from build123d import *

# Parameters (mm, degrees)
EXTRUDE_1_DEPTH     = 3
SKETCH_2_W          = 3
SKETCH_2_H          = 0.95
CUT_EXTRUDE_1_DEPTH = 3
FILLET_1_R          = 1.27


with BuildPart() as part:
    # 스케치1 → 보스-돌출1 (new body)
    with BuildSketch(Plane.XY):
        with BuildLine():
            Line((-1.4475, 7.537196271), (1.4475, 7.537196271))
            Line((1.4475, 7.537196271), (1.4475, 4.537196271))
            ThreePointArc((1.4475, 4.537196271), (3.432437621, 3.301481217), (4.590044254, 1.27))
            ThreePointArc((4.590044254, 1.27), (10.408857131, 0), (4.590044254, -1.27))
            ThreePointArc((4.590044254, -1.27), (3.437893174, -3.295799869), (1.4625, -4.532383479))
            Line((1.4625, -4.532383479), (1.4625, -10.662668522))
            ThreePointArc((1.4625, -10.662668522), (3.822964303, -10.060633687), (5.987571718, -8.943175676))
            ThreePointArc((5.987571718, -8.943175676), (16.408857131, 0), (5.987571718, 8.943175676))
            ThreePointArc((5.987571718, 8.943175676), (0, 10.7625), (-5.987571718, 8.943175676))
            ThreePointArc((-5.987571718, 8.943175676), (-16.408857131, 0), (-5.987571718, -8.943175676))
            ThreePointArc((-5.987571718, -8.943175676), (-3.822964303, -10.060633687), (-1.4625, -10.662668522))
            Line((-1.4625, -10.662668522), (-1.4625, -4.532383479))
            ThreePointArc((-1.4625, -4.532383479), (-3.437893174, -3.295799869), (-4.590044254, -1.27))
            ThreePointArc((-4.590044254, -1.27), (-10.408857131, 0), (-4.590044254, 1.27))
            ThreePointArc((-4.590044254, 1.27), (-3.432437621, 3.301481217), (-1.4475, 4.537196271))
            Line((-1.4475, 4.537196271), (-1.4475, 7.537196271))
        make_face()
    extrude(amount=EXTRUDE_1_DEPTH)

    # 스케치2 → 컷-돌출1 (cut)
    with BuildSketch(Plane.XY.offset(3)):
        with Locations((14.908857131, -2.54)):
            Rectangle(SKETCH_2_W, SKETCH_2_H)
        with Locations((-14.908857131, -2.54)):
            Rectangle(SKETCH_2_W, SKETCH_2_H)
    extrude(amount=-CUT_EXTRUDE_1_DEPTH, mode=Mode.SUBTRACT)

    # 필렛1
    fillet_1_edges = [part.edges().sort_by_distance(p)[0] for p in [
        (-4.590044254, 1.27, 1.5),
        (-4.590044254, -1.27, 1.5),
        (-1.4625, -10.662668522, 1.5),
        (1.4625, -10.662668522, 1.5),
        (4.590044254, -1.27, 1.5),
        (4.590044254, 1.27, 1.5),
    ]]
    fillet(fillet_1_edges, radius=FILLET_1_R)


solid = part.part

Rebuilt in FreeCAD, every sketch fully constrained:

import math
import FreeCAD as App
import Part
import Sketcher

V = App.Vector
Q = App.Units.Quantity


def edges_at(feature, points):
    """Names of the edges that pass closest to the given points."""
    edges = feature.Shape.Edges
    near = lambda p: min(range(len(edges)), key=lambda i: edges[i].distToShape(Part.Vertex(*p))[0])
    return sorted({f"Edge{near(p) + 1}" for p in points})

doc = App.newDocument("Part")
body = doc.addObject("PartDesign::Body", "Body")

# Sketch on XY plane
sketch1 = body.newObject("Sketcher::SketchObject", "Sketch")
sketch1.AttachmentSupport = (doc.getObject("XY_Plane"), [""])
sketch1.MapMode = "FlatFace"
sketch1.addGeometry([
    Part.LineSegment(V(-1.4, 7.5, 0), V(1.4, 7.5, 0)),  # 0
    Part.LineSegment(V(1.4, 7.5, 0), V(1.4, 4.5, 0)),  # 1
    Part.ArcOfCircle(Part.Circle(V(0, 0, 0), V(0, 0, 1), 4.8), math.radians(15), math.radians(72)),  # 2
    Part.ArcOfCircle(Part.Circle(V(7.4, 0, 0), V(0, 0, 1), 3), math.radians(-155), math.radians(155)),  # 3
    Part.ArcOfCircle(Part.Circle(V(0, 0, 0), V(0, 0, 1), 4.8), math.radians(-72), math.radians(-15)),  # 4
    Part.LineSegment(V(1.5, -4.5, 0), V(1.5, -10.7, 0)),  # 5
    Part.ArcOfCircle(Part.Circle(V(0, 0, 0), V(0, 0, 1), 10.8), math.radians(-82), math.radians(-56)),  # 6
    Part.ArcOfCircle(Part.Circle(V(7.4, 0, 0), V(0, 0, 1), 9), math.radians(-99), math.radians(99)),  # 7
    Part.ArcOfCircle(Part.Circle(V(0, 0, 0), V(0, 0, 1), 10.8), math.radians(56), math.radians(124)),  # 8
    Part.ArcOfCircle(Part.Circle(V(-7.4, 0, 0), V(0, 0, 1), 9), math.radians(81), math.radians(279)),  # 9
    Part.ArcOfCircle(Part.Circle(V(0, 0, 0), V(0, 0, 1), 10.8), math.radians(-124), math.radians(-98)),  # 10
    Part.LineSegment(V(-1.5, -10.7, 0), V(-1.5, -4.5, 0)),  # 11
    Part.ArcOfCircle(Part.Circle(V(0, 0, 0), V(0, 0, 1), 4.8), math.radians(-165), math.radians(-108)),  # 12
    Part.ArcOfCircle(Part.Circle(V(-7.4, 0, 0), V(0, 0, 1), 3), math.radians(25), math.radians(335)),  # 13
    Part.ArcOfCircle(Part.Circle(V(0, 0, 0), V(0, 0, 1), 4.8), math.radians(108), math.radians(165)),  # 14
    Part.LineSegment(V(-1.4, 4.5, 0), V(-1.4, 7.5, 0)),  # 15
], False)
sketch1.addConstraint([
    Sketcher.Constraint("Coincident", 0, 2, 1, 1),
    Sketcher.Constraint("Coincident", 1, 2, 2, 2),
    Sketcher.Constraint("Coincident", 2, 1, 3, 2),
    Sketcher.Constraint("Coincident", 3, 1, 4, 2),
    Sketcher.Constraint("Coincident", 4, 1, 5, 1),
    Sketcher.Constraint("Coincident", 5, 2, 6, 1),
    Sketcher.Constraint("Coincident", 6, 2, 7, 1),
    Sketcher.Constraint("Coincident", 7, 2, 8, 1),
    Sketcher.Constraint("Coincident", 8, 2, 9, 1),
    Sketcher.Constraint("Coincident", 9, 2, 10, 1),
    Sketcher.Constraint("Coincident", 10, 2, 11, 1),
    Sketcher.Constraint("Coincident", 11, 2, 12, 2),
    Sketcher.Constraint("Coincident", 12, 1, 13, 2),
    Sketcher.Constraint("Coincident", 13, 1, 14, 2),
    Sketcher.Constraint("Coincident", 14, 1, 15, 1),
    Sketcher.Constraint("Coincident", 15, 2, 0, 1),
    Sketcher.Constraint("Horizontal", 0),
    Sketcher.Constraint("Vertical", 1),
    Sketcher.Constraint("Vertical", 5),
    Sketcher.Constraint("Vertical", 11),
    Sketcher.Constraint("Vertical", 15),
    Sketcher.Constraint("Coincident", 2, 3, -1, 1),
    Sketcher.Constraint("Coincident", 4, 3, -1, 1),
    Sketcher.Constraint("Coincident", 6, 3, -1, 1),
    Sketcher.Constraint("Coincident", 8, 3, -1, 1),
    Sketcher.Constraint("Coincident", 10, 3, -1, 1),
    Sketcher.Constraint("Coincident", 12, 3, -1, 1),
    Sketcher.Constraint("Coincident", 14, 3, -1, 1),
    Sketcher.Constraint("Coincident", 7, 3, 3, 3),
    Sketcher.Constraint("Coincident", 13, 3, 9, 3),
    Sketcher.Constraint("Equal", 2, 4),
    Sketcher.Constraint("Equal", 6, 8),
    Sketcher.Constraint("Equal", 7, 9),
    Sketcher.Constraint("Equal", 8, 10),
    Sketcher.Constraint("Equal", 4, 12),
    Sketcher.Constraint("Equal", 3, 13),
    Sketcher.Constraint("Equal", 12, 14),
    Sketcher.Constraint("Symmetric", 3, 3, 9, 3, -1, 1),
    Sketcher.Constraint("PointOnObject", 3, 3, -1),
    Sketcher.Constraint("Horizontal", 5, 2, 10, 2),
    Sketcher.Constraint("Horizontal", 1, 2, 14, 1),
    Sketcher.Constraint("Radius", 3, Q("0.12 in")),
    Sketcher.Constraint("Radius", 2, Q("0.1875 in")),
    Sketcher.Constraint("DistanceY", 3, 1, 2, 1, Q("0.1 in")),
    Sketcher.Constraint("Radius", 6, 10.7625),
    Sketcher.Constraint("Radius", 7, 9.048),
    Sketcher.Constraint("DistanceX", 0, 1, 0, 2, 2.895),
    Sketcher.Constraint("DistanceY", 1, 2, 1, 1, 3.0),
    Sketcher.Constraint("DistanceX", -1, 1, 4, 1, 1.4625),
])
pad1 = body.newObject("PartDesign::Pad", "Pad")
pad1.Profile = sketch1
pad1.Length = 3

# Sketch on XY plane
sketch2 = body.newObject("Sketcher::SketchObject", "Sketch001")
sketch2.AttachmentSupport = (doc.getObject("XY_Plane"), [""])
sketch2.MapMode = "FlatFace"
sketch2.AttachmentOffset = App.Placement(V(0, 0, 3), App.Rotation())
sketch2.addGeometry([
    Part.LineSegment(V(13.4, -2.1, 0), V(13.4, -3, 0)),  # 0
    Part.LineSegment(V(13.4, -3, 0), V(16.4, -3, 0)),  # 1
    Part.LineSegment(V(16.4, -3, 0), V(16.4, -2.1, 0)),  # 2
    Part.LineSegment(V(16.4, -2.1, 0), V(13.4, -2.1, 0)),  # 3
    Part.LineSegment(V(-16.4, -2.1, 0), V(-16.4, -3, 0)),  # 4
    Part.LineSegment(V(-16.4, -3, 0), V(-13.4, -3, 0)),  # 5
    Part.LineSegment(V(-13.4, -3, 0), V(-13.4, -2.1, 0)),  # 6
    Part.LineSegment(V(-13.4, -2.1, 0), V(-16.4, -2.1, 0)),  # 7
], False)
sketch2.addConstraint([
    Sketcher.Constraint("Coincident", 0, 2, 1, 1),
    Sketcher.Constraint("Coincident", 1, 2, 2, 1),
    Sketcher.Constraint("Coincident", 2, 2, 3, 1),
    Sketcher.Constraint("Coincident", 3, 2, 0, 1),
    Sketcher.Constraint("Coincident", 4, 2, 5, 1),
    Sketcher.Constraint("Coincident", 5, 2, 6, 1),
    Sketcher.Constraint("Coincident", 6, 2, 7, 1),
    Sketcher.Constraint("Coincident", 7, 2, 4, 1),
    Sketcher.Constraint("Vertical", 0),
    Sketcher.Constraint("Horizontal", 1),
    Sketcher.Constraint("Vertical", 2),
    Sketcher.Constraint("Horizontal", 3),
    Sketcher.Constraint("Vertical", 4),
    Sketcher.Constraint("Horizontal", 5),
    Sketcher.Constraint("Vertical", 6),
    Sketcher.Constraint("Horizontal", 7),
    Sketcher.Constraint("Symmetric", 1, 2, 4, 2, -2),
    Sketcher.Constraint("Symmetric", 3, 2, 6, 2, -2),
    Sketcher.Constraint("DistanceX", 1, 1, 1, 2, 3.0),
    Sketcher.Constraint("DistanceY", 0, 2, 0, 1, 0.95),
    Sketcher.Constraint("DistanceY", 0, 2, -1, 1, 3.015),
    Sketcher.Constraint("DistanceX", -1, 1, 0, 2, 13.408857),
])
pocket1 = body.newObject("PartDesign::Pocket", "Pocket")
pocket1.Profile = sketch2
pocket1.Length = 3
doc.recompute()

fillet = body.newObject("PartDesign::Fillet", "Fillet")
fillet.Base = (pocket1, edges_at(pocket1, [
    (-4.59, 1.27, 1.5),
    (-4.59, -1.27, 1.5),
    (-1.462, -10.663, 1.5),
    (1.462, -10.663, 1.5),
    (4.59, -1.27, 1.5),
    (4.59, 1.27, 1.5),
]))
fillet.Radius = Q("0.05 in")

doc.recompute()
